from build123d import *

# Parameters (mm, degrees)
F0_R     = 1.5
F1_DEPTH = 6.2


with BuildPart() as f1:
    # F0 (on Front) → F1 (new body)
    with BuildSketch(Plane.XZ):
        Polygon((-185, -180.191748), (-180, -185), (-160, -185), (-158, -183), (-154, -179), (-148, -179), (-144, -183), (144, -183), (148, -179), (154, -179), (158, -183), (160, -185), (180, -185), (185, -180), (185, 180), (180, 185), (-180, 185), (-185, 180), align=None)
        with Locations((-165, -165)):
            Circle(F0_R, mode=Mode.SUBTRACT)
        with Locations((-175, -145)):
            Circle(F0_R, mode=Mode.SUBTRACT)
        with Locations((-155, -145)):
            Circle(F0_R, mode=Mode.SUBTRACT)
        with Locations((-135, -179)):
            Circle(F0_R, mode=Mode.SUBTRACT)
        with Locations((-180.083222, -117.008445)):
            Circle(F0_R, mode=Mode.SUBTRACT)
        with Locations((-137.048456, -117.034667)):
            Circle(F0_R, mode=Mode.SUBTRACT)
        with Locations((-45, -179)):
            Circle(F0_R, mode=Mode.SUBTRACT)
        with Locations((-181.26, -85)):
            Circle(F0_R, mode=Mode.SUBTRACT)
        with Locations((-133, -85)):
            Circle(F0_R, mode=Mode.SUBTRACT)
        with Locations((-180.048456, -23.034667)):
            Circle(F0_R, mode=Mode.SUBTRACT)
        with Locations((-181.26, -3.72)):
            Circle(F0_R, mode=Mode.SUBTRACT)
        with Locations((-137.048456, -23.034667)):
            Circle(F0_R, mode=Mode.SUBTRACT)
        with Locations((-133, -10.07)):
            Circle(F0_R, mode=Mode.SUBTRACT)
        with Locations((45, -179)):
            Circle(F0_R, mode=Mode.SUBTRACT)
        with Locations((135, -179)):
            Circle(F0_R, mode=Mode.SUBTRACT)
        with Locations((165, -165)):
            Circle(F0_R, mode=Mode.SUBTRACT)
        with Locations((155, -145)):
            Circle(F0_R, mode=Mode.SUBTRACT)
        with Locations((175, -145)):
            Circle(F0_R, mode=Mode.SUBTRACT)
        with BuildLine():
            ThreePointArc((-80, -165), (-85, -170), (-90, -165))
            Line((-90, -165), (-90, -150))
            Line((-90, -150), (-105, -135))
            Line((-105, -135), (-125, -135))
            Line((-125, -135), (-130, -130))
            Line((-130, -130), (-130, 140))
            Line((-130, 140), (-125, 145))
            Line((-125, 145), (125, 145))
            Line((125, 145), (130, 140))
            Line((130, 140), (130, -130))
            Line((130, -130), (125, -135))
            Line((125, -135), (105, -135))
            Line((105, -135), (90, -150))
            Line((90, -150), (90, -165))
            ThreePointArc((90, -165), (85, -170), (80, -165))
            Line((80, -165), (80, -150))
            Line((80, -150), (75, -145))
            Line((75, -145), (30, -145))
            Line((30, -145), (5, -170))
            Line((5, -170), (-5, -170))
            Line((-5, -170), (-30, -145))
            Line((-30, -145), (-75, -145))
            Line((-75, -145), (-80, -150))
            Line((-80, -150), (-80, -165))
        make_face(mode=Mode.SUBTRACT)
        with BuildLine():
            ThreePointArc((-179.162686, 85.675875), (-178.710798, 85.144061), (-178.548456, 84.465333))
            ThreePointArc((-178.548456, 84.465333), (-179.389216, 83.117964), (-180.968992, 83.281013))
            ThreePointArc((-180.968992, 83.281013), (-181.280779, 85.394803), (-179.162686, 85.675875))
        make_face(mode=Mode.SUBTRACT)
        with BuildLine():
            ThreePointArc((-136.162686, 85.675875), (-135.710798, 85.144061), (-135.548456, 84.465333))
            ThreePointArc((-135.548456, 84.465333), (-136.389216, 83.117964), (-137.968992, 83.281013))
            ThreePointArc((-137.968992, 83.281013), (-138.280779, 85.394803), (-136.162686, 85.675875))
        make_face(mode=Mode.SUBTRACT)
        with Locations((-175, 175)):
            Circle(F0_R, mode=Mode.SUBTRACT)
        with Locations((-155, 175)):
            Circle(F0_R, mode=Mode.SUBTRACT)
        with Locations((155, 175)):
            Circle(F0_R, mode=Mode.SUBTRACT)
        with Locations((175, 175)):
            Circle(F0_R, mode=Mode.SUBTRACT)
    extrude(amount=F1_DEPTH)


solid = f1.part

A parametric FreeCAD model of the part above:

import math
import FreeCAD as App
import Part
import Sketcher


def add_polygon(sketch, points):
    """Adds a closed chain of lines whose ends are joined by coincident constraints."""
    first, n = sketch.GeometryCount, len(points)
    for a, b in zip(points, points[1:] + points[:1]):
        sketch.addGeometry(Part.LineSegment(App.Vector(*a, 0), App.Vector(*b, 0)), False)
    for i in range(n):
        sketch.addConstraint(Sketcher.Constraint("Coincident", first + i, 2, first + (i + 1) % n, 1))

doc = App.newDocument("Part")
body = doc.addObject("PartDesign::Body", "Body")

# Sketch on XZ plane
sketch1 = body.newObject("Sketcher::SketchObject", "Sketch")
sketch1.AttachmentSupport = (doc.getObject("XZ_Plane"), [""])
sketch1.MapMode = "FlatFace"
add_polygon(sketch1, [(-185, -180.191748), (-180, -185), (-160, -185), (-154, -179), (-148, -179), (-144, -183), (144, -183), (148, -179), (154, -179), (160, -185), (180, -185), (185, -180), (185, 180), (180, 185), (-180, 185), (-185, 180)])  # lines 0-15
sketch1.addGeometry(Part.Circle(App.Vector(-165, -165, 0), App.Vector(0, 0, 1), 1.5), False)  # 16
sketch1.addGeometry(Part.Circle(App.Vector(-175, -145, 0), App.Vector(0, 0, 1), 1.5), False)  # 17
sketch1.addGeometry(Part.Circle(App.Vector(-155, -145, 0), App.Vector(0, 0, 1), 1.5), False)  # 18
sketch1.addGeometry(Part.Circle(App.Vector(-135, -179, 0), App.Vector(0, 0, 1), 1.5), False)  # 19
sketch1.addGeometry(Part.Circle(App.Vector(-180.083222, -117.008445, 0), App.Vector(0, 0, 1), 1.5), False)  # 20
sketch1.addGeometry(Part.Circle(App.Vector(-137.048456, -117.034667, 0), App.Vector(0, 0, 1), 1.5), False)  # 21
sketch1.addGeometry(Part.Circle(App.Vector(-45, -179, 0), App.Vector(0, 0, 1), 1.5), False)  # 22
sketch1.addGeometry(Part.Circle(App.Vector(-181.26, -85, 0), App.Vector(0, 0, 1), 1.5), False)  # 23
sketch1.addGeometry(Part.Circle(App.Vector(-133, -85, 0), App.Vector(0, 0, 1), 1.5), False)  # 24
sketch1.addGeometry(Part.Circle(App.Vector(-180.048456, -23.034667, 0), App.Vector(0, 0, 1), 1.5), False)  # 25
sketch1.addGeometry(Part.Circle(App.Vector(-181.26, -3.72, 0), App.Vector(0, 0, 1), 1.5), False)  # 26
sketch1.addGeometry(Part.Circle(App.Vector(-137.048456, -23.034667, 0), App.Vector(0, 0, 1), 1.5), False)  # 27
sketch1.addGeometry(Part.Circle(App.Vector(-133, -10.07, 0), App.Vector(0, 0, 1), 1.5), False)  # 28
sketch1.addGeometry(Part.Circle(App.Vector(45, -179, 0), App.Vector(0, 0, 1), 1.5), False)  # 29
sketch1.addGeometry(Part.Circle(App.Vector(135, -179, 0), App.Vector(0, 0, 1), 1.5), False)  # 30
sketch1.addGeometry(Part.Circle(App.Vector(165, -165, 0), App.Vector(0, 0, 1), 1.5), False)  # 31
sketch1.addGeometry(Part.Circle(App.Vector(155, -145, 0), App.Vector(0, 0, 1), 1.5), False)  # 32
sketch1.addGeometry(Part.Circle(App.Vector(175, -145, 0), App.Vector(0, 0, 1), 1.5), False)  # 33
sketch1.addGeometry(Part.LineSegment(App.Vector(-80, -150, 0), App.Vector(-80, -165, 0)), False)  # 34
sketch1.addGeometry(Part.ArcOfCircle(Part.Circle(App.Vector(-85, -165, 0), App.Vector(0, 0, 1), 5), math.radians(180), math.radians(360)), False)  # 35
sketch1.addGeometry(Part.LineSegment(App.Vector(-90, -165, 0), App.Vector(-90, -150, 0)), False)  # 36
sketch1.addGeometry(Part.LineSegment(App.Vector(-90, -150, 0), App.Vector(-105, -135, 0)), False)  # 37
sketch1.addGeometry(Part.LineSegment(App.Vector(-105, -135, 0), App.Vector(-125, -135, 0)), False)  # 38
sketch1.addGeometry(Part.LineSegment(App.Vector(-125, -135, 0), App.Vector(-130, -130, 0)), False)  # 39
sketch1.addGeometry(Part.LineSegment(App.Vector(-130, -130, 0), App.Vector(-130, 140, 0)), False)  # 40
sketch1.addGeometry(Part.LineSegment(App.Vector(-130, 140, 0), App.Vector(-125, 145, 0)), False)  # 41
sketch1.addGeometry(Part.LineSegment(App.Vector(-125, 145, 0), App.Vector(125, 145, 0)), False)  # 42
sketch1.addGeometry(Part.LineSegment(App.Vector(125, 145, 0), App.Vector(130, 140, 0)), False)  # 43
sketch1.addGeometry(Part.LineSegment(App.Vector(130, 140, 0), App.Vector(130, -130, 0)), False)  # 44
sketch1.addGeometry(Part.LineSegment(App.Vector(130, -130, 0), App.Vector(125, -135, 0)), False)  # 45
sketch1.addGeometry(Part.LineSegment(App.Vector(125, -135, 0), App.Vector(105, -135, 0)), False)  # 46
sketch1.addGeometry(Part.LineSegment(App.Vector(105, -135, 0), App.Vector(90, -150, 0)), False)  # 47
sketch1.addGeometry(Part.LineSegment(App.Vector(90, -150, 0), App.Vector(90, -165, 0)), False)  # 48
sketch1.addGeometry(Part.ArcOfCircle(Part.Circle(App.Vector(85, -165, 0), App.Vector(0, 0, 1), 5), math.radians(180), math.radians(360)), False)  # 49
sketch1.addGeometry(Part.LineSegment(App.Vector(80, -165, 0), App.Vector(80, -150, 0)), False)  # 50
sketch1.addGeometry(Part.LineSegment(App.Vector(80, -150, 0), App.Vector(75, -145, 0)), False)  # 51
sketch1.addGeometry(Part.LineSegment(App.Vector(75, -145, 0), App.Vector(30, -145, 0)), False)  # 52
sketch1.addGeometry(Part.LineSegment(App.Vector(30, -145, 0), App.Vector(5, -170, 0)), False)  # 53
sketch1.addGeometry(Part.LineSegment(App.Vector(5, -170, 0), App.Vector(-5, -170, 0)), False)  # 54
sketch1.addGeometry(Part.LineSegment(App.Vector(-5, -170, 0), App.Vector(-30, -145, 0)), False)  # 55
sketch1.addGeometry(Part.LineSegment(App.Vector(-30, -145, 0), App.Vector(-75, -145, 0)), False)  # 56
sketch1.addGeometry(Part.LineSegment(App.Vector(-75, -145, 0), App.Vector(-80, -150, 0)), False)  # 57
sketch1.addGeometry(Part.ArcOfCircle(Part.Circle(App.Vector(-180.083222, 84.491555, 0), App.Vector(0, 0, 1), 1.5), math.radians(52.143169), math.radians(233.806551)), False)  # 58
sketch1.addGeometry(Part.ArcOfCircle(Part.Circle(App.Vector(-180.048455, 84.465334, 0), App.Vector(0, 0, 1), 1.499999), math.radians(-0.000027), math.radians(53.806576)), False)  # 59
sketch1.addGeometry(Part.ArcOfCircle(Part.Circle(App.Vector(-180.048456, 84.465333, 0), App.Vector(0, 0, 1), 1.5), math.radians(-127.856846), math.radians(0.000009)), False)  # 60
sketch1.addGeometry(Part.ArcOfCircle(Part.Circle(App.Vector(-137.083222, 84.491555, 0), App.Vector(0, 0, 1), 1.5), math.radians(52.143169), math.radians(233.806551)), False)  # 61
sketch1.addGeometry(Part.ArcOfCircle(Part.Circle(App.Vector(-137.048455, 84.465334, 0), App.Vector(0, 0, 1), 1.499999), math.radians(-0.000027), math.radians(53.806576)), False)  # 62
sketch1.addGeometry(Part.ArcOfCircle(Part.Circle(App.Vector(-137.048456, 84.465333, 0), App.Vector(0, 0, 1), 1.5), math.radians(-127.856846), math.radians(0.000009)), False)  # 63
sketch1.addGeometry(Part.Circle(App.Vector(-175, 175, 0), App.Vector(0, 0, 1), 1.5), False)  # 64
sketch1.addGeometry(Part.Circle(App.Vector(-155, 175, 0), App.Vector(0, 0, 1), 1.5), False)  # 65
sketch1.addGeometry(Part.Circle(App.Vector(155, 175, 0), App.Vector(0, 0, 1), 1.5), False)  # 66
sketch1.addGeometry(Part.Circle(App.Vector(175, 175, 0), App.Vector(0, 0, 1), 1.5), False)  # 67
sketch1.addConstraint([
    Sketcher.Constraint("Tangent", 34, 2, 35, 2),
    Sketcher.Constraint("Tangent", 35, 1, 36, 1),
    Sketcher.Constraint("Coincident", 36, 2, 37, 1),
    Sketcher.Constraint("Coincident", 37, 2, 38, 1),
    Sketcher.Constraint("Coincident", 38, 2, 39, 1),
    Sketcher.Constraint("Coincident", 39, 2, 40, 1),
    Sketcher.Constraint("Coincident", 40, 2, 41, 1),
    Sketcher.Constraint("Coincident", 41, 2, 42, 1),
    Sketcher.Constraint("Coincident", 42, 2, 43, 1),
    Sketcher.Constraint("Coincident", 43, 2, 44, 1),
    Sketcher.Constraint("Coincident", 44, 2, 45, 1),
    Sketcher.Constraint("Coincident", 45, 2, 46, 1),
    Sketcher.Constraint("Coincident", 46, 2, 47, 1),
    Sketcher.Constraint("Coincident", 47, 2, 48, 1),
    Sketcher.Constraint("Tangent", 48, 2, 49, 2),
    Sketcher.Constraint("Tangent", 49, 1, 50, 1),
    Sketcher.Constraint("Coincident", 50, 2, 51, 1),
    Sketcher.Constraint("Coincident", 51, 2, 52, 1),
    Sketcher.Constraint("Coincident", 52, 2, 53, 1),
    Sketcher.Constraint("Coincident", 53, 2, 54, 1),
    Sketcher.Constraint("Coincident", 54, 2, 55, 1),
    Sketcher.Constraint("Coincident", 55, 2, 56, 1),
    Sketcher.Constraint("Coincident", 56, 2, 57, 1),
    Sketcher.Constraint("Coincident", 57, 2, 34, 1),
    Sketcher.Constraint("Coincident", 58, 1, 59, 2),
    Sketcher.Constraint("Tangent", 59, 1, 60, 2),
    Sketcher.Constraint("Coincident", 60, 1, 58, 2),
    Sketcher.Constraint("Coincident", 61, 1, 62, 2),
    Sketcher.Constraint("Tangent", 62, 1, 63, 2),
    Sketcher.Constraint("Coincident", 63, 1, 61, 2),
    Sketcher.Constraint("Horizontal", 1),
    Sketcher.Constraint("Horizontal", 3),
    Sketcher.Constraint("Horizontal", 5),
    Sketcher.Constraint("Horizontal", 7),
    Sketcher.Constraint("Horizontal", 9),
    Sketcher.Constraint("Vertical", 11),
    Sketcher.Constraint("Horizontal", 13),
    Sketcher.Constraint("Vertical", 15),
    Sketcher.Constraint("Vertical", 34),
    Sketcher.Constraint("Vertical", 36),
    Sketcher.Constraint("Horizontal", 38),
    Sketcher.Constraint("Vertical", 40),
    Sketcher.Constraint("Horizontal", 42),
    Sketcher.Constraint("Vertical", 44),
    Sketcher.Constraint("Horizontal", 46),
    Sketcher.Constraint("Vertical", 48),
    Sketcher.Constraint("Vertical", 50),
    Sketcher.Constraint("Horizontal", 52),
    Sketcher.Constraint("Horizontal", 54),
    Sketcher.Constraint("Horizontal", 56),
    Sketcher.Constraint("Equal", 16, 17),
    Sketcher.Constraint("Equal", 17, 18),
    Sketcher.Constraint("Equal", 18, 19),
    Sketcher.Constraint("Equal", 19, 20),
    Sketcher.Constraint("Equal", 20, 21),
    Sketcher.Constraint("Equal", 21, 22),
    Sketcher.Constraint("Equal", 22, 23),
    Sketcher.Constraint("Equal", 23, 24),
    Sketcher.Constraint("Equal", 24, 25),
    Sketcher.Constraint("Equal", 25, 26),
    Sketcher.Constraint("Equal", 26, 27),
    Sketcher.Constraint("Equal", 27, 28),
    Sketcher.Constraint("Equal", 28, 29),
    Sketcher.Constraint("Equal", 29, 30),
    Sketcher.Constraint("Equal", 30, 31),
    Sketcher.Constraint("Equal", 31, 32),
    Sketcher.Constraint("Equal", 32, 33),
    Sketcher.Constraint("Equal", 35, 49),
    Sketcher.Constraint("Equal", 33, 58),
    Sketcher.Constraint("Equal", 58, 59),
    Sketcher.Constraint("Equal", 59, 60),
    Sketcher.Constraint("Equal", 60, 61),
    Sketcher.Constraint("Equal", 61, 62),
    Sketcher.Constraint("Equal", 62, 63),
    Sketcher.Constraint("Equal", 63, 64),
    Sketcher.Constraint("Equal", 64, 65),
    Sketcher.Constraint("Equal", 65, 66),
    Sketcher.Constraint("Equal", 66, 67),
    Sketcher.Constraint("Symmetric", 0, 2, 12, 2, -1, 1),
    Sketcher.Constraint("Symmetric", 9, 2, 13, 2, -1, 1),
    Sketcher.Constraint("Symmetric", 10, 2, 14, 2, -1, 1),
    Sketcher.Constraint("Symmetric", 22, 3, 29, 3, -2),
    Sketcher.Constraint("Symmetric", 19, 3, 30, 3, -2),
    Sketcher.Constraint("Symmetric", 16, 3, 31, 3, -2),
    Sketcher.Constraint("Symmetric", 18, 3, 32, 3, -2),
    Sketcher.Constraint("Symmetric", 17, 3, 33, 3, -2),
    Sketcher.Constraint("Symmetric", 35, 3, 49, 3, -2),
    Sketcher.Constraint("Symmetric", 65, 3, 66, 3, -2),
    Sketcher.Constraint("Symmetric", 64, 3, 67, 3, -2),
    Sketcher.Constraint("Symmetric", 3, 2, 6, 2, -2),
    Sketcher.Constraint("Symmetric", 40, 2, 43, 2, -2),
    Sketcher.Constraint("Symmetric", 38, 2, 45, 2, -2),
    Sketcher.Constraint("Symmetric", 52, 2, 55, 2, -2),
    Sketcher.Constraint("Perpendicular", 2, 4),
    Sketcher.Constraint("Perpendicular", 4, 6),
    Sketcher.Constraint("Perpendicular", 6, 8),
    Sketcher.Constraint("Perpendicular", 8, 10),
    Sketcher.Constraint("Perpendicular", 10, 12),
    Sketcher.Constraint("Perpendicular", 14, 37),
    Sketcher.Constraint("Parallel", 37, 39),
    Sketcher.Constraint("Perpendicular", 39, 41),
    Sketcher.Constraint("Perpendicular", 41, 43),
    Sketcher.Constraint("Perpendicular", 43, 45),
    Sketcher.Constraint("Parallel", 45, 47),
    Sketcher.Constraint("Perpendicular", 47, 51),
    Sketcher.Constraint("Perpendicular", 51, 53),
    Sketcher.Constraint("Perpendicular", 53, 55),
    Sketcher.Constraint("Perpendicular", 55, 57),
    Sketcher.Constraint("Horizontal", 17, 3, 18, 3),
    Sketcher.Constraint("Horizontal", 19, 3, 22, 3),
    Sketcher.Constraint("Horizontal", 23, 3, 24, 3),
    Sketcher.Constraint("Horizontal", 25, 3, 27, 3),
    Sketcher.Constraint("Horizontal", 31, 3, 35, 3),
    Sketcher.Constraint("Horizontal", 58, 3, 61, 3),
    Sketcher.Constraint("Horizontal", 60, 3, 62, 3),
    Sketcher.Constraint("Horizontal", 64, 3, 65, 3),
    Sketcher.Constraint("Horizontal", 30, 3, 2, 2),
    Sketcher.Constraint("Horizontal", 11, 2, 14, 2),
    Sketcher.Constraint("Horizontal", 39, 2, 44, 2),
    Sketcher.Constraint("Horizontal", 36, 2, 47, 2),
    Sketcher.Constraint("Horizontal", 47, 2, 50, 2),
    Sketcher.Constraint("Horizontal", 33, 3, 51, 2),
    Sketcher.Constraint("Horizontal", 50, 2, 57, 2),
    Sketcher.Constraint("Horizontal", 63, 3, 59, 1),
    Sketcher.Constraint("Horizontal", 58, 1, 61, 1),
    Sketcher.Constraint("Horizontal", 59, 1, 62, 1),
    Sketcher.Constraint("Vertical", 23, 3, 26, 3),
    Sketcher.Constraint("Vertical", 21, 3, 27, 3),
    Sketcher.Constraint("Vertical", 24, 3, 28, 3),
    Sketcher.Constraint("Vertical", 20, 3, 58, 3),
    Sketcher.Constraint("Vertical", 25, 3, 59, 3),
    Sketcher.Constraint("Vertical", 27, 3, 62, 3),
    Sketcher.Constraint("Vertical", 17, 3, 64, 3),
    Sketcher.Constraint("Vertical", 18, 3, 65, 3),
    Sketcher.Constraint("Vertical", 38, 2, 41, 2),
    Sketcher.Constraint("Equal", 3, 7),
    Sketcher.Constraint("Equal", 9, 38),
    Sketcher.Constraint("Equal", 13, 11),
    Sketcher.Constraint("Equal", 14, 39),
    Sketcher.Constraint("Equal", 45, 51),
    Sketcher.Constraint("Diameter", 16, 3.0),
    Sketcher.Constraint("Radius", 35, 5.0),
    Sketcher.Constraint("DistanceX", 1, 1, 1, 2, 20.0),
    Sketcher.Constraint("DistanceX", 3, 1, 3, 2, 6.0),
    Sketcher.Constraint("DistanceX", 5, 1, 5, 2, 288.0),
    Sketcher.Constraint("DistanceX", 13, 2, 13, 1, 360.0),
    Sketcher.Constraint("DistanceX", 42, 1, 42, 2, 250.0),
    Sketcher.Constraint("DistanceX", 52, 2, 52, 1, 45.0),
    Sketcher.Constraint("DistanceX", 54, 2, 54, 1, 10.0),
    Sketcher.Constraint("DistanceY", 34, 2, 34, 1, 15.0),
    Sketcher.Constraint("DistanceY", 40, 1, 40, 2, 270.0),
    Sketcher.Constraint("DistanceX", 16, 3, -1, 1, 165.0),
    Sketcher.Constraint("DistanceY", 16, 3, -1, 1, 165.0),
    Sketcher.Constraint("DistanceX", 17, 3, -1, 1, 175.0),
    Sketcher.Constraint("DistanceY", 17, 3, -1, 1, 145.0),
    Sketcher.Constraint("DistanceX", 18, 3, -1, 1, 155.0),
    Sketcher.Constraint("DistanceX", 19, 3, -1, 1, 135.0),
    Sketcher.Constraint("DistanceY", 19, 3, -1, 1, 179.0),
    Sketcher.Constraint("DistanceX", 22, 3, -1, 1, 45.0),
    Sketcher.Constraint("DistanceY", 23, 3, -1, 1, 85.0),
    Sketcher.Constraint("DistanceX", 24, 3, -1, 1, 133.0),
    Sketcher.Constraint("DistanceX", 35, 3, -1, 1, 85.0),
    Sketcher.Constraint("DistanceY", -1, 1, 64, 3, 175.0),
    Sketcher.Constraint("DistanceX", 23, 3, -1, 1, 181.26),
    Sketcher.Constraint("DistanceY", 26, 3, -1, 1, 3.72),
    Sketcher.Constraint("DistanceY", 28, 3, -1, 1, 10.07),
    Sketcher.Constraint("DistanceY", 15, 2, 15, 1, 360.191748),
    Sketcher.Constraint("DistanceX", 20, 3, -1, 1, 180.083222),
    Sketcher.Constraint("DistanceX", 61, 3, -1, 1, 137.083222),
    Sketcher.Constraint("DistanceX", 60, 1, -1, 1, 180.968992),
    Sketcher.Constraint("DistanceY", 20, 3, -1, 1, 117.008445),
    Sketcher.Constraint("DistanceX", 21, 3, -1, 1, 137.048456),
    Sketcher.Constraint("DistanceY", 21, 3, -1, 1, 117.034667),
    Sketcher.Constraint("DistanceY", 25, 3, -1, 1, 23.034667),
    Sketcher.Constraint("DistanceY", -1, 1, 58, 3, 84.491555),
])
pad1 = body.newObject("PartDesign::Pad", "Pad")
pad1.Profile = sketch1
pad1.Length = 6.2

doc.recompute()
